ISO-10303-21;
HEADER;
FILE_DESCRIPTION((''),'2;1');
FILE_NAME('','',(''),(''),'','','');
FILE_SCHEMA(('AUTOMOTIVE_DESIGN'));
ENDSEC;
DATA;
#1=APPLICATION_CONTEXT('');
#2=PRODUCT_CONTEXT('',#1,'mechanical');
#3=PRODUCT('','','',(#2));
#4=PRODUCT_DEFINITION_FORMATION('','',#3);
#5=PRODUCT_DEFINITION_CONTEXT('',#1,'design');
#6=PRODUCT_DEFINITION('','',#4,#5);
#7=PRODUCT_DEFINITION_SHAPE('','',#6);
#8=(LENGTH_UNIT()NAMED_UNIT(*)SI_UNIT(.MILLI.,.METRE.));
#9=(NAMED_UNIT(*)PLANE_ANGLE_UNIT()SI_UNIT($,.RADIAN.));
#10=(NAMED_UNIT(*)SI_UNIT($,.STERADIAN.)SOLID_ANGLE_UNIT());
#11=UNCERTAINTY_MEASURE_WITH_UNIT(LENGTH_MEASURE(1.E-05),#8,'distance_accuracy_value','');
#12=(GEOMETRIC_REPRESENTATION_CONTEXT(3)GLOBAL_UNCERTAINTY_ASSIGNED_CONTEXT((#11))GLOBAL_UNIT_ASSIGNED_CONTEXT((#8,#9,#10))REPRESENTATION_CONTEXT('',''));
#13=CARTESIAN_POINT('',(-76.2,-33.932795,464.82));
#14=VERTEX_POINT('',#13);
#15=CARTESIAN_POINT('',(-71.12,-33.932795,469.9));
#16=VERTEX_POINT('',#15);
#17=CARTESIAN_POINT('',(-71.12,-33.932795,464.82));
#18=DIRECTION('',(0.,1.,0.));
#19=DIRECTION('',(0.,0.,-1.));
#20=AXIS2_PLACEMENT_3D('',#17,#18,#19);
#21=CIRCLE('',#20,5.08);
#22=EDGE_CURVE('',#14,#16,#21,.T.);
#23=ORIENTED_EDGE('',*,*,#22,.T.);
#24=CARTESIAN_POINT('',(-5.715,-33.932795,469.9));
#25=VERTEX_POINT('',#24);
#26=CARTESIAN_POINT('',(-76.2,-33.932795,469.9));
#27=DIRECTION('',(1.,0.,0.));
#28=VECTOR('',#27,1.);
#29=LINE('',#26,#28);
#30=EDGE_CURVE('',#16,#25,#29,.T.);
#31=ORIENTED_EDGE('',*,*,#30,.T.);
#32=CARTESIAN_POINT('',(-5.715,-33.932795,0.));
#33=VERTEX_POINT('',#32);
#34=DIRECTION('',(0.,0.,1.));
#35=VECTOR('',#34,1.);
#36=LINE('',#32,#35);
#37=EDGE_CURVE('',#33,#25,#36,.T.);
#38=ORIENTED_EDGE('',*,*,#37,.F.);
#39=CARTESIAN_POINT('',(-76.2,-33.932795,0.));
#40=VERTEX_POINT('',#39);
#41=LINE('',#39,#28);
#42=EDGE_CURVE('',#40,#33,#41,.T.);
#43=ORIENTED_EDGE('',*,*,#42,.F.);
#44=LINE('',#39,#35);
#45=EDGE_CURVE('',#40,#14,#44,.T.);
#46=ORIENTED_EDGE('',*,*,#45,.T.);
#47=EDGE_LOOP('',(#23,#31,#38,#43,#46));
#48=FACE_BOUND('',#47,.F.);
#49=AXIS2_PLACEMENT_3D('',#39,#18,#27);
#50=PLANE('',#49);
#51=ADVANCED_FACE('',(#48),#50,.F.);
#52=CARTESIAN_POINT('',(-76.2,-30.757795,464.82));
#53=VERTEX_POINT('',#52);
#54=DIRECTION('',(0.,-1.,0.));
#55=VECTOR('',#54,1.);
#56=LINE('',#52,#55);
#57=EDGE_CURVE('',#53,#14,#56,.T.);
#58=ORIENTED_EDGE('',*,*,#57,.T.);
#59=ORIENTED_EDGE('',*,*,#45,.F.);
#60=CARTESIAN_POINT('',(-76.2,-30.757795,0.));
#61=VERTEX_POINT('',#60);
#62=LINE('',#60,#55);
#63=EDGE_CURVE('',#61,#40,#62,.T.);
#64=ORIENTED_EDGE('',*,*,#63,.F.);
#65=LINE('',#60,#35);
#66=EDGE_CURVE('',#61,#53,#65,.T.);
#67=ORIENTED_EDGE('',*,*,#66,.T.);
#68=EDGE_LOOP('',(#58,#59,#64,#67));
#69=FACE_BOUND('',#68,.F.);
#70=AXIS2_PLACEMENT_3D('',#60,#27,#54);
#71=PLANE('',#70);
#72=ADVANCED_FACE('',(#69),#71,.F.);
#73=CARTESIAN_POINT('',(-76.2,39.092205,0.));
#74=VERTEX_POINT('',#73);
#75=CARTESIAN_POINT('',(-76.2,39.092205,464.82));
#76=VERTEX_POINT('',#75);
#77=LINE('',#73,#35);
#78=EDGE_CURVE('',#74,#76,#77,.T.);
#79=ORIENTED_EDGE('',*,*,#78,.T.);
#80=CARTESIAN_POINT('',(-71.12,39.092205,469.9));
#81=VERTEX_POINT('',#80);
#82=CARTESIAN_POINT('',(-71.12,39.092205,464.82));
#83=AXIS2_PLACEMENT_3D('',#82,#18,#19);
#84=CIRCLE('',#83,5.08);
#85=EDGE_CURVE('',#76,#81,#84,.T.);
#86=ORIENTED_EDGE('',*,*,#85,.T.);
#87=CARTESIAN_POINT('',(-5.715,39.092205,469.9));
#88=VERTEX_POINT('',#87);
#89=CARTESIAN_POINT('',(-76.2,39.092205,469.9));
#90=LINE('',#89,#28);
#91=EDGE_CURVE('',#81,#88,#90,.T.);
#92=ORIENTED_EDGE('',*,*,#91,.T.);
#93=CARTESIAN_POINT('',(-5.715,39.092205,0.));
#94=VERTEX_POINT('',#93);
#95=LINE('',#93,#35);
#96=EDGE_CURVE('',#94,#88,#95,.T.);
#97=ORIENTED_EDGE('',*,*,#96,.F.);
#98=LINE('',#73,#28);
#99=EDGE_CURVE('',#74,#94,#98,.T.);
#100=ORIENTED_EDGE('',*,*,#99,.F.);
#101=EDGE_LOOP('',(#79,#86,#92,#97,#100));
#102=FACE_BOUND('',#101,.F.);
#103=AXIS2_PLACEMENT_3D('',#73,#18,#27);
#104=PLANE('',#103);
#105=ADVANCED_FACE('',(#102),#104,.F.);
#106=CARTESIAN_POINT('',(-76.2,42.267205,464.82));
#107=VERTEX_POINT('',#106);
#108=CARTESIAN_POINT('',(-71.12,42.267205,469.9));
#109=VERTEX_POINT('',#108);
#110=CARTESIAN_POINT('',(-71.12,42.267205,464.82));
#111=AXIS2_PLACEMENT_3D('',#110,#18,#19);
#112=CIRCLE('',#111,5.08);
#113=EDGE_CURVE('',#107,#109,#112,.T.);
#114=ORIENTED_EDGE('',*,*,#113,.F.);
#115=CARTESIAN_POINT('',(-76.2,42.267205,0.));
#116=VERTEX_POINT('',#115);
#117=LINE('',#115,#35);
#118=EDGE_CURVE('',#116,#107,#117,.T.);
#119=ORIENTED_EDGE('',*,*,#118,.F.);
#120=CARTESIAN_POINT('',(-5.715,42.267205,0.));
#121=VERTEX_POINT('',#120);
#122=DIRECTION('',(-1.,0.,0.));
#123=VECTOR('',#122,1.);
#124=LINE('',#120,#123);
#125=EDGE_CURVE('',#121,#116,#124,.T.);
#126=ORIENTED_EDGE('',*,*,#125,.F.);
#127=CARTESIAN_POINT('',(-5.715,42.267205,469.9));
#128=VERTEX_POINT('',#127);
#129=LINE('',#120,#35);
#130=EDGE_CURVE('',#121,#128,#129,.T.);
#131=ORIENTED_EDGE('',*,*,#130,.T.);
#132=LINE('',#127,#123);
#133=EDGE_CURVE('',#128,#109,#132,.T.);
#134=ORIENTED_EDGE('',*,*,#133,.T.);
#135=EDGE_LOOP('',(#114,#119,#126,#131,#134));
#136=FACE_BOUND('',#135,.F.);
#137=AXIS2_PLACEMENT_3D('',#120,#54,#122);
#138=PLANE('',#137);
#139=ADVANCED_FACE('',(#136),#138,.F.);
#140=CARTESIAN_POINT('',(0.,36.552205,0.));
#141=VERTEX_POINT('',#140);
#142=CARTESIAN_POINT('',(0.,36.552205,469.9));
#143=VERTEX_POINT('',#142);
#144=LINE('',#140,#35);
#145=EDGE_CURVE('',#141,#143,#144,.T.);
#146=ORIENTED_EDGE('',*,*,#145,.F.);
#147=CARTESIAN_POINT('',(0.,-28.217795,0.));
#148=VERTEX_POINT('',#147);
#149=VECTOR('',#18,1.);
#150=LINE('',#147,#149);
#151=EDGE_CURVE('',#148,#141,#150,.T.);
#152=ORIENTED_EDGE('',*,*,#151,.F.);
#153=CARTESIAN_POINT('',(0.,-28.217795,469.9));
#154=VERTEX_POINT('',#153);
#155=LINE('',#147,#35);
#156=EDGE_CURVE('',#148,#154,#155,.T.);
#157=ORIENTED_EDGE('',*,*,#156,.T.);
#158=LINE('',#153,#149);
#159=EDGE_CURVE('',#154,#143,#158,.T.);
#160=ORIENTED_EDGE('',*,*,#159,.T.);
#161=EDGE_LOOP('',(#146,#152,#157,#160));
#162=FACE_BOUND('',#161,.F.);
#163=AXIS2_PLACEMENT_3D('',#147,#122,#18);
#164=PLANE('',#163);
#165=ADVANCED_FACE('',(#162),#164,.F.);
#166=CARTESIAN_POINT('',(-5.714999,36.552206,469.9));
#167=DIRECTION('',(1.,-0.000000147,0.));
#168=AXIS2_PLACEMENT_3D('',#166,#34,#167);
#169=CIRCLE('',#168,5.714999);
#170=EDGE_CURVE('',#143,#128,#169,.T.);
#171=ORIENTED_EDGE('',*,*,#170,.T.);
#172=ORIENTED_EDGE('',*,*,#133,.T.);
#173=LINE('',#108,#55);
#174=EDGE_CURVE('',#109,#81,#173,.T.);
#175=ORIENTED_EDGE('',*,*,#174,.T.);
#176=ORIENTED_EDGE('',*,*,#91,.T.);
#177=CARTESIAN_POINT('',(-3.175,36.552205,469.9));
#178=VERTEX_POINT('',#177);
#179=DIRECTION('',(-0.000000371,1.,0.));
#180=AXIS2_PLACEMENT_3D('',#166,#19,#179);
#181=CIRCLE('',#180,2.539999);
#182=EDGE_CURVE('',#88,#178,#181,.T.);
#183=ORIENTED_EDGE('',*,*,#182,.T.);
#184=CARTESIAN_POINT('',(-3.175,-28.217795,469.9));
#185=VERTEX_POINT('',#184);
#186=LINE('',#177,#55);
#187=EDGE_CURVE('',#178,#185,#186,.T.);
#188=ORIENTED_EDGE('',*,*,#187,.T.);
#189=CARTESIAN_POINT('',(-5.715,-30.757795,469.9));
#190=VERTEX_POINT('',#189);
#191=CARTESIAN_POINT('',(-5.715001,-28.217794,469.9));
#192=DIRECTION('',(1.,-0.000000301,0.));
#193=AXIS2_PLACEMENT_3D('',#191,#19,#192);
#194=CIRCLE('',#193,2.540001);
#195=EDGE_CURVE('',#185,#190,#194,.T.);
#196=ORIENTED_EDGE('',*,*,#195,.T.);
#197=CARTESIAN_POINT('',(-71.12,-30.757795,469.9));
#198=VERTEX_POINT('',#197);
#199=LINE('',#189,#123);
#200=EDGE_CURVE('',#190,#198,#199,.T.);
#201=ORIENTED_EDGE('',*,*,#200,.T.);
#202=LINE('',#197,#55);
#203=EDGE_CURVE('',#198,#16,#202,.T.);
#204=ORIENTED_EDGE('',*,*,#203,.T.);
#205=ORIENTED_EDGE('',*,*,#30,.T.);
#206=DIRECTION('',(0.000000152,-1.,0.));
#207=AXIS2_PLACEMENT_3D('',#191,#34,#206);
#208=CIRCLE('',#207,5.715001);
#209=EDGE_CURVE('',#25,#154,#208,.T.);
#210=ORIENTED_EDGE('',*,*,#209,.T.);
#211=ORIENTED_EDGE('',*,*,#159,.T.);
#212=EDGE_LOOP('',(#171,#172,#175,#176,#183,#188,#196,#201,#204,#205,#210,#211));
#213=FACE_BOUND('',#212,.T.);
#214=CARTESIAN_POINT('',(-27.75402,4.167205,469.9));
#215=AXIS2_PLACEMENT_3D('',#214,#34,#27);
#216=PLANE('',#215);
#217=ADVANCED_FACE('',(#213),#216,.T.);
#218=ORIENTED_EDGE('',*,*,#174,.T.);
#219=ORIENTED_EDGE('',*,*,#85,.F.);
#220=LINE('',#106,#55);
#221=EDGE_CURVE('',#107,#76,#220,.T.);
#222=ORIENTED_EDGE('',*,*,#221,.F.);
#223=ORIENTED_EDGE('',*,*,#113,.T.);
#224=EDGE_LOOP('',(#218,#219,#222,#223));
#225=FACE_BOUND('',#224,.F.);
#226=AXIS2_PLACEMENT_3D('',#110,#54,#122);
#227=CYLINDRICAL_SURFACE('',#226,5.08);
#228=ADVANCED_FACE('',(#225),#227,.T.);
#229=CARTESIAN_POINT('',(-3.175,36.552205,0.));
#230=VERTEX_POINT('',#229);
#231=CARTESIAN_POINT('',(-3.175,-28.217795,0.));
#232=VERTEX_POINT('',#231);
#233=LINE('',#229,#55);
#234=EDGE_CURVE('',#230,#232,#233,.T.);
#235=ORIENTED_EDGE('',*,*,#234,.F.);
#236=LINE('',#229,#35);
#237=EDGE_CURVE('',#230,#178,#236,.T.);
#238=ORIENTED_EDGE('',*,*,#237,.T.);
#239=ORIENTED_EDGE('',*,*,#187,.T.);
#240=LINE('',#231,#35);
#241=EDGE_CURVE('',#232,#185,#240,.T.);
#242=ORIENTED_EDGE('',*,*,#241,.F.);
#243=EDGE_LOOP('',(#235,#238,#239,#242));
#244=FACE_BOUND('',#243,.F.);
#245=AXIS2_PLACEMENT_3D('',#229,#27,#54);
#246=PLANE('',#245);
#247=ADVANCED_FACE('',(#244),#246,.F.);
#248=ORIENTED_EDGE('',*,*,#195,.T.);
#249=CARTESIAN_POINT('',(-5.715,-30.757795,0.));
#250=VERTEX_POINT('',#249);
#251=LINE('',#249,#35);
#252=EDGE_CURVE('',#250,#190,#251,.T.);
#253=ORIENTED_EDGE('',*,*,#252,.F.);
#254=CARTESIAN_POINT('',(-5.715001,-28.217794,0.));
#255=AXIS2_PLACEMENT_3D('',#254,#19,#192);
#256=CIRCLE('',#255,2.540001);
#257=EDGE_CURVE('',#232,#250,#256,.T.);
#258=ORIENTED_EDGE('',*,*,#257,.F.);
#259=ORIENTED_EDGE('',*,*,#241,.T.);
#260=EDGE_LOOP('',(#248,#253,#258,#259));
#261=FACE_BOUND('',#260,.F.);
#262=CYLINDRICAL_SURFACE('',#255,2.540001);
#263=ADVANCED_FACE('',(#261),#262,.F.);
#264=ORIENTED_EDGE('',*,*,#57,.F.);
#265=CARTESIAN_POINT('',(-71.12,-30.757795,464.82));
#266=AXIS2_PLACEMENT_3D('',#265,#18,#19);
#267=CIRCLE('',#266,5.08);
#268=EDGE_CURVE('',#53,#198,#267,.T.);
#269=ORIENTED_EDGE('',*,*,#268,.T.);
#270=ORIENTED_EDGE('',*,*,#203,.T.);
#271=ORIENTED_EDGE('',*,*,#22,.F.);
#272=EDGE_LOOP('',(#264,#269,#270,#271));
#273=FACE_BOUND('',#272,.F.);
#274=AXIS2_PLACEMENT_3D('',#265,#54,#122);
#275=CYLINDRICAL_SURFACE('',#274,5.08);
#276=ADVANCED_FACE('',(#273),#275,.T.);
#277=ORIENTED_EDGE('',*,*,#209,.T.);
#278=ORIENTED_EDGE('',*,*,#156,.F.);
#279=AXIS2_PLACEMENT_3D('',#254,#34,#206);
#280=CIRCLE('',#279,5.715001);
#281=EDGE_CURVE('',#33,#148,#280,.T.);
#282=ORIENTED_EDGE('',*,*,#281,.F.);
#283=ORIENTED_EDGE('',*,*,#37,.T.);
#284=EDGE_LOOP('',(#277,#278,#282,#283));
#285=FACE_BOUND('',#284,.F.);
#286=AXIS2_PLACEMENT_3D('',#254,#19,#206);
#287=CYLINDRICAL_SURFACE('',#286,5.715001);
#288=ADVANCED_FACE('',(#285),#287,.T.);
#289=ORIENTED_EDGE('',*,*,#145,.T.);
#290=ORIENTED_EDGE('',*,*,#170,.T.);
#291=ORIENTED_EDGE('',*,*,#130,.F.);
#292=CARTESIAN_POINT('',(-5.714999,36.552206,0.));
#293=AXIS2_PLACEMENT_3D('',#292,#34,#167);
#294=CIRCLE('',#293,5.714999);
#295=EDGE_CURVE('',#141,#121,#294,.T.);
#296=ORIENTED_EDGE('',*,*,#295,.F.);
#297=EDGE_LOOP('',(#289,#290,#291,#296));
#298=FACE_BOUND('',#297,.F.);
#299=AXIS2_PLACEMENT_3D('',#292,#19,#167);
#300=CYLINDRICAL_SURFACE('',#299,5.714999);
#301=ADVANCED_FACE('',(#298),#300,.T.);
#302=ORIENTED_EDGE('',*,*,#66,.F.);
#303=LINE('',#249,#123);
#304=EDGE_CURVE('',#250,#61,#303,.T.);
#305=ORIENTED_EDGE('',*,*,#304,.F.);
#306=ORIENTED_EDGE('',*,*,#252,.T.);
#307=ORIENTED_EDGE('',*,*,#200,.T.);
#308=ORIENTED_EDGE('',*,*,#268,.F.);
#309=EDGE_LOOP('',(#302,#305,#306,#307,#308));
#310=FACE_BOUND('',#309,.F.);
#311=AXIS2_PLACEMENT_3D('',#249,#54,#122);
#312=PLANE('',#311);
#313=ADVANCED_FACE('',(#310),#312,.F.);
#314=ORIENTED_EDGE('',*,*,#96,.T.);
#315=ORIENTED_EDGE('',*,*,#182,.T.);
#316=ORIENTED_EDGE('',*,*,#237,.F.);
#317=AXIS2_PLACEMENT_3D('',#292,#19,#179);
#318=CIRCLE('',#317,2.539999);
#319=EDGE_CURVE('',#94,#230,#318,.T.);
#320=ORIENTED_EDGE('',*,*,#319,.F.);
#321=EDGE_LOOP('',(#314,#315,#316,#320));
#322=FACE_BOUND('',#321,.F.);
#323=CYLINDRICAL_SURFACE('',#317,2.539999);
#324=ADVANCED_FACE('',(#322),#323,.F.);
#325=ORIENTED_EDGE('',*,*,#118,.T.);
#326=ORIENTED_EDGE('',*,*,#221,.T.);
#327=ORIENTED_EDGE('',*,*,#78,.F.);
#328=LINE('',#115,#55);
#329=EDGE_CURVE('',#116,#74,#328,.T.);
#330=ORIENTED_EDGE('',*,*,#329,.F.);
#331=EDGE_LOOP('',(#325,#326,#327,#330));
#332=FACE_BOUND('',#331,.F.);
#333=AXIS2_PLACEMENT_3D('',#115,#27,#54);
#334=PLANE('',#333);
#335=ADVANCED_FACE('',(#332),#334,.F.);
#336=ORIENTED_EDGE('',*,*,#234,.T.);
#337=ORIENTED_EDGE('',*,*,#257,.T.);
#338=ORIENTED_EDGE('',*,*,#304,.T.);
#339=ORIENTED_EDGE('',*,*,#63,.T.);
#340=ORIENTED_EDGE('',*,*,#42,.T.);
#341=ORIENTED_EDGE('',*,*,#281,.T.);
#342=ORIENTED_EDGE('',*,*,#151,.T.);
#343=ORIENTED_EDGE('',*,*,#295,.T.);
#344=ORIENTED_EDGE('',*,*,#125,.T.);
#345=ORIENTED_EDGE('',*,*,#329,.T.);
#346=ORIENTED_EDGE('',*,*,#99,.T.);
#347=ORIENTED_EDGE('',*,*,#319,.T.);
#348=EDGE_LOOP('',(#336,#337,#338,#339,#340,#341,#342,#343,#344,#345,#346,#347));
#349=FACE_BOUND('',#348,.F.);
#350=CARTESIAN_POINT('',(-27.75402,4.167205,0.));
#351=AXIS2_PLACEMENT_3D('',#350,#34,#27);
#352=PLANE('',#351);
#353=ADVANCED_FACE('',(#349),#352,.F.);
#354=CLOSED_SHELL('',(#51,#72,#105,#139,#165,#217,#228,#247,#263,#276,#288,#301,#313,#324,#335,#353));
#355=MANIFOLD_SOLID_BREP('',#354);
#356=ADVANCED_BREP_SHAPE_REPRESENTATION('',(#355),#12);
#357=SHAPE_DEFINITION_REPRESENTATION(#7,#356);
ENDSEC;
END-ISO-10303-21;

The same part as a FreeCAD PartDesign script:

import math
import FreeCAD as App
import Part
import Sketcher
Q = App.Units.Quantity


def edges_at(feature, points):
    """Names of the edges that pass closest to the given points."""
    edges = feature.Shape.Edges
    near = lambda p: min(range(len(edges)), key=lambda i: edges[i].distToShape(Part.Vertex(*p))[0])
    return sorted({f"Edge{near(p) + 1}" for p in points})

doc = App.newDocument("Part")
body = doc.addObject("PartDesign::Body", "Body")

# Sketch on XY plane
sketch1 = body.newObject("Sketcher::SketchObject", "Sketch")
sketch1.AttachmentSupport = (doc.getObject("XY_Plane"), [""])
sketch1.MapMode = "FlatFace"
sketch1.addGeometry([
    Part.LineSegment(App.Vector(-5.7, 42.3, 0), App.Vector(-76.2, 42.3, 0)),  # 0
    Part.LineSegment(App.Vector(-76.2, 42.3, 0), App.Vector(-76.2, 39.1, 0)),  # 1
    Part.LineSegment(App.Vector(-76.2, 39.1, 0), App.Vector(-5.7, 39.1, 0)),  # 2
    Part.ArcOfCircle(Part.Circle(App.Vector(-5.7, 36.6, 0), App.Vector(0, 0, 1), 2.5), math.radians(0), math.radians(90)),  # 3
    Part.LineSegment(App.Vector(-3.2, 36.6, 0), App.Vector(-3.2, -28.2, 0)),  # 4
    Part.ArcOfCircle(Part.Circle(App.Vector(-5.7, -28.2, 0), App.Vector(0, 0, 1), 2.5), math.radians(-90), math.radians(0)),  # 5
    Part.LineSegment(App.Vector(-5.7, -30.8, 0), App.Vector(-76.2, -30.8, 0)),  # 6
    Part.LineSegment(App.Vector(-76.2, -30.8, 0), App.Vector(-76.2, -33.9, 0)),  # 7
    Part.LineSegment(App.Vector(-76.2, -33.9, 0), App.Vector(-5.7, -33.9, 0)),  # 8
    Part.ArcOfCircle(Part.Circle(App.Vector(-5.7, -28.2, 0), App.Vector(0, 0, 1), 5.7), math.radians(-90), math.radians(0)),  # 9
    Part.LineSegment(App.Vector(0, -28.2, 0), App.Vector(0, 36.6, 0)),  # 10
    Part.ArcOfCircle(Part.Circle(App.Vector(-5.7, 36.6, 0), App.Vector(0, 0, 1), 5.7), math.radians(0), math.radians(90)),  # 11
], False)
sketch1.addConstraint([
    Sketcher.Constraint("Coincident", 0, 2, 1, 1),
    Sketcher.Constraint("Coincident", 1, 2, 2, 1),
    Sketcher.Constraint("Tangent", 2, 2, 3, 2),
    Sketcher.Constraint("Tangent", 3, 1, 4, 1),
    Sketcher.Constraint("Tangent", 4, 2, 5, 2),
    Sketcher.Constraint("Tangent", 5, 1, 6, 1),
    Sketcher.Constraint("Coincident", 6, 2, 7, 1),
    Sketcher.Constraint("Coincident", 7, 2, 8, 1),
    Sketcher.Constraint("Tangent", 8, 2, 9, 1),
    Sketcher.Constraint("Tangent", 9, 2, 10, 1),
    Sketcher.Constraint("Tangent", 10, 2, 11, 1),
    Sketcher.Constraint("Tangent", 11, 2, 0, 1),
    Sketcher.Constraint("Horizontal", 0),
    Sketcher.Constraint("Vertical", 1),
    Sketcher.Constraint("Horizontal", 2),
    Sketcher.Constraint("Vertical", 4),
    Sketcher.Constraint("Horizontal", 6),
    Sketcher.Constraint("Vertical", 7),
    Sketcher.Constraint("Horizontal", 8),
    Sketcher.Constraint("Vertical", 10),
    Sketcher.Constraint("Coincident", 9, 3, 5, 3),
    Sketcher.Constraint("Coincident", 11, 3, 3, 3),
    Sketcher.Constraint("Equal", 3, 5),
    Sketcher.Constraint("PointOnObject", 9, 2, -2),
    Sketcher.Constraint("Vertical", 1, 2, 6, 2),
    Sketcher.Constraint("Radius", 3, Q("0.1 in")),
    Sketcher.Constraint("DistanceX", 0, 2, -1, 1, Q("3 in")),
    Sketcher.Constraint("Radius", 9, Q("0.225 in")),
    Sketcher.Constraint("DistanceY", 4, 2, 4, 1, Q("2.55 in")),
    Sketcher.Constraint("DistanceY", -1, 1, 3, 3, 36.552206),
])
pad1 = body.newObject("PartDesign::Pad", "Pad")
pad1.Profile = sketch1
pad1.Length = Q("18.5 in")
doc.recompute()

fillet = body.newObject("PartDesign::Fillet", "Fillet")
fillet.Base = (pad1, edges_at(pad1, [(-76.2, -32.345, 469.9), (-76.2, 40.68, 469.9)]))
fillet.Radius = Q("0.2 in")

doc.recompute()
